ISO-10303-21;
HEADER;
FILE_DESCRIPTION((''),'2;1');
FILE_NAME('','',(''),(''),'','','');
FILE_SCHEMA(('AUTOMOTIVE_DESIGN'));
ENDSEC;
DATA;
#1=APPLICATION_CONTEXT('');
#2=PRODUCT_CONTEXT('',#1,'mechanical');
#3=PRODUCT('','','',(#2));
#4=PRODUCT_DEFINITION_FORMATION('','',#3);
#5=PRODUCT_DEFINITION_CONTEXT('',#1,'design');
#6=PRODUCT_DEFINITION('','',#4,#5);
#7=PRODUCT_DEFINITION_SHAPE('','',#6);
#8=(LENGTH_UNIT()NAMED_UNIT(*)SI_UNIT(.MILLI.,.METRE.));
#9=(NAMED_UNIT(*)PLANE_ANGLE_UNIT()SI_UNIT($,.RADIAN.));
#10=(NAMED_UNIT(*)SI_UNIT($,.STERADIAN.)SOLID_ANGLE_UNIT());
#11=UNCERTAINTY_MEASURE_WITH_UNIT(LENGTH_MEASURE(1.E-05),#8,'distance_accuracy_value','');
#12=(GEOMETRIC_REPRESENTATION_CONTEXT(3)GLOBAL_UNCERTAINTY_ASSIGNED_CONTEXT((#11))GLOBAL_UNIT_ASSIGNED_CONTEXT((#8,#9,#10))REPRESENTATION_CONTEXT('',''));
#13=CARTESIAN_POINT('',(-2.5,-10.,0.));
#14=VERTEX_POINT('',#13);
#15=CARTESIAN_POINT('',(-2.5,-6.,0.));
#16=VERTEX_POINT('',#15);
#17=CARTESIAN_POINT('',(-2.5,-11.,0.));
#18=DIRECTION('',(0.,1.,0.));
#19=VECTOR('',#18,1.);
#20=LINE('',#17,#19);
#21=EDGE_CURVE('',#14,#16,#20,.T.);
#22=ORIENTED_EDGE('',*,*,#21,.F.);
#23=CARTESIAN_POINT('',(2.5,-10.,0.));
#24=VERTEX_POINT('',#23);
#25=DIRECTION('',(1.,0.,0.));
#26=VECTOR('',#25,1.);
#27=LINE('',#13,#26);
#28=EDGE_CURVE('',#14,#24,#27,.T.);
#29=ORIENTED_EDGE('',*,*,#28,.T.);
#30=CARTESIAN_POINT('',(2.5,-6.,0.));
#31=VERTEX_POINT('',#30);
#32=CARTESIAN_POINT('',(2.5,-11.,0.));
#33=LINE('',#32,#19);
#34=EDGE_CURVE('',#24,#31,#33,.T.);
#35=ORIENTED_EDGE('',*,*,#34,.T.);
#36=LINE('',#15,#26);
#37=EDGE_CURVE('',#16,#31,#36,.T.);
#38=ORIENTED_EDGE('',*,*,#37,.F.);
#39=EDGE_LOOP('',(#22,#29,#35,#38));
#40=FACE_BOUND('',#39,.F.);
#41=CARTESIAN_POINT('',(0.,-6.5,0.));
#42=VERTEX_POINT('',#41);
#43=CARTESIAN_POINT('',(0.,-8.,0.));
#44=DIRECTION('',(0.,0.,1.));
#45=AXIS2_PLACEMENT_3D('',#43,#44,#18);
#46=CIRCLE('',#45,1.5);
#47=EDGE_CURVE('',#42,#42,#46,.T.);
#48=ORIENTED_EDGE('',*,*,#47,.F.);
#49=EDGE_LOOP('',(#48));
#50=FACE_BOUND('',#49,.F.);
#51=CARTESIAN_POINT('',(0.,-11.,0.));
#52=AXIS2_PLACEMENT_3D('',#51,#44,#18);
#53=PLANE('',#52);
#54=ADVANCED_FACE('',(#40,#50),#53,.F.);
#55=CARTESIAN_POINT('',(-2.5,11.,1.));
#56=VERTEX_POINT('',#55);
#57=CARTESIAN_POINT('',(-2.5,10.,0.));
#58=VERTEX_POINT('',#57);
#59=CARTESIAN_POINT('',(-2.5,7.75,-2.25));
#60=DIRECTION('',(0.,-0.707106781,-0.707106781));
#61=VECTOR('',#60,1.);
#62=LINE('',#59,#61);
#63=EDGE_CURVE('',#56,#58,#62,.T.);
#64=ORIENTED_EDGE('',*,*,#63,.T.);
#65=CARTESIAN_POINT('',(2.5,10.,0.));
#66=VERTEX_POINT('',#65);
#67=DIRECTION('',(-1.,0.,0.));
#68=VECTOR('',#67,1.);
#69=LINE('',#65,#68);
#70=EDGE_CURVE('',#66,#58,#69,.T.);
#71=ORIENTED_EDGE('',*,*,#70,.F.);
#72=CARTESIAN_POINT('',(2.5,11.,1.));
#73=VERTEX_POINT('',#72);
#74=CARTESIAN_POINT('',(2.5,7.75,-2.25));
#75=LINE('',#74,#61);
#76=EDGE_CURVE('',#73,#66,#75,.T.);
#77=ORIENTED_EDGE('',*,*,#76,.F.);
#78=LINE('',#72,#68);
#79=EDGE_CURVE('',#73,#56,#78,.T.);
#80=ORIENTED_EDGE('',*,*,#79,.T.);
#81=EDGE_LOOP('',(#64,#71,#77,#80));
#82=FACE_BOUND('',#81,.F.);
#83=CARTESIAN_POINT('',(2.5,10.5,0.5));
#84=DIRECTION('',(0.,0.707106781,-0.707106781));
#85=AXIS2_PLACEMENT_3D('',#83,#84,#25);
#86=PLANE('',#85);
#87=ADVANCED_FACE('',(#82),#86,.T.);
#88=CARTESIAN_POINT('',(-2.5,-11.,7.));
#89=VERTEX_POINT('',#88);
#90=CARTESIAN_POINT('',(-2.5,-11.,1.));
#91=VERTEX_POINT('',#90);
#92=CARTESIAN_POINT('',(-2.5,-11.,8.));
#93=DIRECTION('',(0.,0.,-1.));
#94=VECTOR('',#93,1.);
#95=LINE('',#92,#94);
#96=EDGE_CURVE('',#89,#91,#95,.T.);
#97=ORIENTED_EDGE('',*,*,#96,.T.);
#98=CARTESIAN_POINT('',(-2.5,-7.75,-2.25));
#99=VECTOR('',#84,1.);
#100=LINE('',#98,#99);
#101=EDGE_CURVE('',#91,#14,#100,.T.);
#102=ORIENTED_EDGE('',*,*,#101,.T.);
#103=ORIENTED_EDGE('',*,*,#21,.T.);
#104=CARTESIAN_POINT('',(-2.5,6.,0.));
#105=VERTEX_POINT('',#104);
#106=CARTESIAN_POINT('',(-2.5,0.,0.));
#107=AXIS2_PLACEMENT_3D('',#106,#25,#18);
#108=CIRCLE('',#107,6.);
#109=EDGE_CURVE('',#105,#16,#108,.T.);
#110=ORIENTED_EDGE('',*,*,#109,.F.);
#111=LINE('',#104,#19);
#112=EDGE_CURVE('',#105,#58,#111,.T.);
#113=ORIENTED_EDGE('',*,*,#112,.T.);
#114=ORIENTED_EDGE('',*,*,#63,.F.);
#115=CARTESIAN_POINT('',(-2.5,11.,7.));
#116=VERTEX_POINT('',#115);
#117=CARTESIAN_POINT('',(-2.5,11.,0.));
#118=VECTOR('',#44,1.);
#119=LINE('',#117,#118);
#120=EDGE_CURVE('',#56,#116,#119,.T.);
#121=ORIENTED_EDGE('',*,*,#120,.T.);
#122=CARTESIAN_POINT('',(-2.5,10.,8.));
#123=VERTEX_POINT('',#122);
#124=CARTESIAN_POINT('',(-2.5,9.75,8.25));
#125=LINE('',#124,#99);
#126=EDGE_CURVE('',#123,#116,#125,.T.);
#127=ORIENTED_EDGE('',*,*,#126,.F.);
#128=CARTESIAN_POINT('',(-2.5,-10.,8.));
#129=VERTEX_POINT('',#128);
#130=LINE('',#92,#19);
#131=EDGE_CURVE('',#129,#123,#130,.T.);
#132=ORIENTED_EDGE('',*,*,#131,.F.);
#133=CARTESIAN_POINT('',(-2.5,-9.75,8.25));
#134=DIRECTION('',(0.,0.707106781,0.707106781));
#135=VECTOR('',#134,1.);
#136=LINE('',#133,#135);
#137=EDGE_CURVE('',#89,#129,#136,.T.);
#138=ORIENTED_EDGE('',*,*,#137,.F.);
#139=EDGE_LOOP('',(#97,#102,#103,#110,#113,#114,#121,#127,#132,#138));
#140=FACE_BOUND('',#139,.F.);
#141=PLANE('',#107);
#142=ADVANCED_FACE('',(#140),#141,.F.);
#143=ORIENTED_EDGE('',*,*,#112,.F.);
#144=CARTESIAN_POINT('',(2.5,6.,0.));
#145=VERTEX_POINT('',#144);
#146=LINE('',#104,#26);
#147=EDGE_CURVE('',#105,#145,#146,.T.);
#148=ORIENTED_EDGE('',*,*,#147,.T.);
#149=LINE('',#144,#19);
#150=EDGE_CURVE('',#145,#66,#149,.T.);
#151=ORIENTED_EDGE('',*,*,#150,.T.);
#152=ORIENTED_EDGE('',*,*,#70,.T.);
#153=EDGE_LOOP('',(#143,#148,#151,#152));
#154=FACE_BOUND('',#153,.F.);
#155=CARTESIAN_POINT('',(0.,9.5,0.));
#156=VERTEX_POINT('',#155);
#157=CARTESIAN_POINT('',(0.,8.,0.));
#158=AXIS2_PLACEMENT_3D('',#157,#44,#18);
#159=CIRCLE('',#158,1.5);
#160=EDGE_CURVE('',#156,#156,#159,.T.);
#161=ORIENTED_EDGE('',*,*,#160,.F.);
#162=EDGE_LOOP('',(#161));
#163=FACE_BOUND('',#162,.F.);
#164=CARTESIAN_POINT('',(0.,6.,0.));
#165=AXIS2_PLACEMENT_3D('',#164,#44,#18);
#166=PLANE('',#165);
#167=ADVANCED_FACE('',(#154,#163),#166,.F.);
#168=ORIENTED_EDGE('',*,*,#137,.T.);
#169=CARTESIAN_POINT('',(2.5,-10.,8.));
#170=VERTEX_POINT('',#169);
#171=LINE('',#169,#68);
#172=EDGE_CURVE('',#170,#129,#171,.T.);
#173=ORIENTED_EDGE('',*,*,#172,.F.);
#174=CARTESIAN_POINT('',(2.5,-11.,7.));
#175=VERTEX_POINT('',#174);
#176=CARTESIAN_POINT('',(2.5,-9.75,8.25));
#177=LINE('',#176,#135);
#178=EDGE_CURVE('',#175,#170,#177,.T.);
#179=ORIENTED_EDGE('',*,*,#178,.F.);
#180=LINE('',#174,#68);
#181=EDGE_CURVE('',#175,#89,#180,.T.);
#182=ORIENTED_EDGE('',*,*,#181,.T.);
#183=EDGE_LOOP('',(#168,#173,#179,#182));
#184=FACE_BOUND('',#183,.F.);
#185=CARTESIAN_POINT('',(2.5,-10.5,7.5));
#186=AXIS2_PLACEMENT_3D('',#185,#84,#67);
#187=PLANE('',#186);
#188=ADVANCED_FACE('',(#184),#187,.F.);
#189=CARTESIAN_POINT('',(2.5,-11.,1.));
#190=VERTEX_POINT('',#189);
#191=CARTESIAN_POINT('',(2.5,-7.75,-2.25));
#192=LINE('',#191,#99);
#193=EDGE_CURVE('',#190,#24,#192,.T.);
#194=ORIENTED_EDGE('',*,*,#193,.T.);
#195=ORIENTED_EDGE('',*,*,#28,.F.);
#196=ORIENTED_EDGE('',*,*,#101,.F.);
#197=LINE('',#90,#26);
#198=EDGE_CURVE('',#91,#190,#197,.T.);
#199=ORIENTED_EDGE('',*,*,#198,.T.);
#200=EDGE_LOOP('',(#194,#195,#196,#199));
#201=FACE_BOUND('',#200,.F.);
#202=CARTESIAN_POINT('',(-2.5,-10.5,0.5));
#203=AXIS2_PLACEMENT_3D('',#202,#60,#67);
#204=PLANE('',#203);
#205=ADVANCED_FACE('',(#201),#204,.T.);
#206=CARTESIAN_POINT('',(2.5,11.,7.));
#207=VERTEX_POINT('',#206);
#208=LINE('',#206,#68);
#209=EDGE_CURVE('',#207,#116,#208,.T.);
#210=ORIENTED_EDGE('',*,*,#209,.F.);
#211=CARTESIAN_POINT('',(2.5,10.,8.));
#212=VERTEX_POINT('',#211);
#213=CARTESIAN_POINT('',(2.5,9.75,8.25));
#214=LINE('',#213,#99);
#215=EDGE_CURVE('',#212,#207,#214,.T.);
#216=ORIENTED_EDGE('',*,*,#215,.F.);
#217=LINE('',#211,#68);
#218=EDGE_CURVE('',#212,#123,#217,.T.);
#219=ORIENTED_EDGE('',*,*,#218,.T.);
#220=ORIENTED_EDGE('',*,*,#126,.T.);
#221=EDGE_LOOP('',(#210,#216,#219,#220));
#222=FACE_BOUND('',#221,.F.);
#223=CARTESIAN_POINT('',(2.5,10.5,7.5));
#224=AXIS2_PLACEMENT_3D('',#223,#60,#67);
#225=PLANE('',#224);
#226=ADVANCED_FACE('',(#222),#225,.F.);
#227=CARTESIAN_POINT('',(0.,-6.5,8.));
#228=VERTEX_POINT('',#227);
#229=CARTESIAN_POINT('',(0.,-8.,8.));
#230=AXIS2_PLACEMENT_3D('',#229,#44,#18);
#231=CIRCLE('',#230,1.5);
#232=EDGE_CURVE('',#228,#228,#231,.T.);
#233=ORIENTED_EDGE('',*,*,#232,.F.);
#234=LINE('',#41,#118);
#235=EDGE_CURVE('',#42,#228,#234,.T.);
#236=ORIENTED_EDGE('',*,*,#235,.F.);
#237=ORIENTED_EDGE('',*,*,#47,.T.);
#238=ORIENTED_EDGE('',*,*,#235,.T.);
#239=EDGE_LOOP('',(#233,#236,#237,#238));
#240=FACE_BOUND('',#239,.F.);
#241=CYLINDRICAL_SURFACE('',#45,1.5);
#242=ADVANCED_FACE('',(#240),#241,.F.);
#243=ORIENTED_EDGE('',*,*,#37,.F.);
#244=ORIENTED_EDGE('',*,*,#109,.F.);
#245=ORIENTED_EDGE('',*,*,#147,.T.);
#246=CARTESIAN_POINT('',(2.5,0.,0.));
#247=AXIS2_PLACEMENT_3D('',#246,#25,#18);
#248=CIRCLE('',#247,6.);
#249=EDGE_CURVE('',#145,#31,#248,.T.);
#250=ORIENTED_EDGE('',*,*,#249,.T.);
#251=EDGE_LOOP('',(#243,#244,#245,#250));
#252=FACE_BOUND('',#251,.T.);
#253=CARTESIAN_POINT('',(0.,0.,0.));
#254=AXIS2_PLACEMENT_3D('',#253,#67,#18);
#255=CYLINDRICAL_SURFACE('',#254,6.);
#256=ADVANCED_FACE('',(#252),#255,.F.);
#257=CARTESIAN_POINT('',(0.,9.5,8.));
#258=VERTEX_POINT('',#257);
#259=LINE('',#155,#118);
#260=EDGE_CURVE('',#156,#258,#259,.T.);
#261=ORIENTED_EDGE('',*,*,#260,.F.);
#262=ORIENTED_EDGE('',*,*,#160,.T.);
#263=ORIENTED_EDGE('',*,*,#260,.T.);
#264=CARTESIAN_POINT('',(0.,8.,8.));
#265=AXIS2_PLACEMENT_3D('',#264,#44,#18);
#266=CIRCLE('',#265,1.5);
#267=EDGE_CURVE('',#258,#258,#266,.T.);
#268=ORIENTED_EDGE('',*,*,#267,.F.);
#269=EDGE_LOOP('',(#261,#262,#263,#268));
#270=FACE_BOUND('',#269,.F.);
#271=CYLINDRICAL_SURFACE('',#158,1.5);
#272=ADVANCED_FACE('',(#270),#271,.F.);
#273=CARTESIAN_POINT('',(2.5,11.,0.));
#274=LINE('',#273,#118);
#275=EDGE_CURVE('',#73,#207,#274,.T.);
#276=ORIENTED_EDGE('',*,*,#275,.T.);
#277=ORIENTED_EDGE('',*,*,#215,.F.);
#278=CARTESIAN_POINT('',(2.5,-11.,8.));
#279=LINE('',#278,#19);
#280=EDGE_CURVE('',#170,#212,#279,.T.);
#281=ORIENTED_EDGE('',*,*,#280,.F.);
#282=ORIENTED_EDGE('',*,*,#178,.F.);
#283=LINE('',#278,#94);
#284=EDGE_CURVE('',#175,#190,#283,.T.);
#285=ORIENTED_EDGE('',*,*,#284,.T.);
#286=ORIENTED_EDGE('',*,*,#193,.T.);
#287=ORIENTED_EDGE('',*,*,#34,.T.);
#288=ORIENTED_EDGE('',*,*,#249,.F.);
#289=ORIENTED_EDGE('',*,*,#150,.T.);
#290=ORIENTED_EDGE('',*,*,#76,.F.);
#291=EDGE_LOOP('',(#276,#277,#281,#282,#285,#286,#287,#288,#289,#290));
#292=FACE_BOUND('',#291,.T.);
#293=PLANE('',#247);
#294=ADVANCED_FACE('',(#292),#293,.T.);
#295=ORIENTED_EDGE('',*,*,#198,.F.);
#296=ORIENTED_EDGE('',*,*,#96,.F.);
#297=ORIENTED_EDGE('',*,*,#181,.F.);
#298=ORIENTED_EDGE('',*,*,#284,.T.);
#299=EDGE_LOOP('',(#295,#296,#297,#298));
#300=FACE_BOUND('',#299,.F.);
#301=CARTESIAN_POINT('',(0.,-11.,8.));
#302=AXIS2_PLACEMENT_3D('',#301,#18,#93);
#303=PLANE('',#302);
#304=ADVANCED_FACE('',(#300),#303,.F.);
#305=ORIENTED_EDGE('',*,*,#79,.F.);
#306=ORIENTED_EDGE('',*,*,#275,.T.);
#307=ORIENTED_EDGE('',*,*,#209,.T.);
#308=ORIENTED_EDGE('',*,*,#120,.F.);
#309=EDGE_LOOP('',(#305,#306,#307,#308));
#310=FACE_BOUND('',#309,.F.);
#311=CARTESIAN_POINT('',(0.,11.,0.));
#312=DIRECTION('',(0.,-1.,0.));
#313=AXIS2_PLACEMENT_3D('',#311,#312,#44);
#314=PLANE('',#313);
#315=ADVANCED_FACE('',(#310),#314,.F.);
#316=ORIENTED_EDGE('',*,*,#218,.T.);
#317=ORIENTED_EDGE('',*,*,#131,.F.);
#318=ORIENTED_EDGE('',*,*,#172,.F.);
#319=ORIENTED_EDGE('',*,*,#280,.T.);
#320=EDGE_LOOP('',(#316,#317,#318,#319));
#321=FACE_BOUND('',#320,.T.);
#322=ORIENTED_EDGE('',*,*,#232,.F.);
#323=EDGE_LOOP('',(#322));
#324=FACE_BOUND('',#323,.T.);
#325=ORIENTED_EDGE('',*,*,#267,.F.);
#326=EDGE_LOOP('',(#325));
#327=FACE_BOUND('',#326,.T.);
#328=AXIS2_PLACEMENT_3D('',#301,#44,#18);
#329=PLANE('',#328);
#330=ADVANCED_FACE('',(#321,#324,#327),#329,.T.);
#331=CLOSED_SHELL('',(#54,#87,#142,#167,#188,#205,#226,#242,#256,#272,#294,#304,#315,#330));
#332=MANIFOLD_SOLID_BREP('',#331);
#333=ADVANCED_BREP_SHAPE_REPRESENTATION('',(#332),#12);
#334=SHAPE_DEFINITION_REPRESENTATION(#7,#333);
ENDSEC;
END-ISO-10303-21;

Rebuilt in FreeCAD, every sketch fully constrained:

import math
import FreeCAD as App
import Part
import Sketcher
from FreeCAD import Vector


def edges_at(feature, points):
    """Names of the edges that pass closest to the given points."""
    edges = feature.Shape.Edges
    near = lambda p: min(range(len(edges)), key=lambda i: edges[i].distToShape(Part.Vertex(*p))[0])
    return sorted({f"Edge{near(p) + 1}" for p in points})

doc = App.newDocument("Part")
body = doc.addObject("PartDesign::Body", "Body")

sketch1 = doc.addObject("Sketcher::SketchObject", "Sketch")
body.addObject(sketch1)
sketch1.AttachmentSupport = (doc.YZ_Plane, [""])
sketch1.MapMode = "FlatFace"
sketch1.addGeometry(Part.LineSegment(Vector(-11, 8, 0), Vector(-11, 0, 0)), False)
sketch1.addGeometry(Part.LineSegment(Vector(-11, 0, 0), Vector(-6, 0, 0)), False)
sketch1.addGeometry(Part.ArcOfCircle(Part.Circle(Vector(0, 0, 0), Vector(0, 0, 1), 6), math.radians(0), math.radians(180)), False)
sketch1.addGeometry(Part.LineSegment(Vector(6, 0, 0), Vector(11, 0, 0)), False)
sketch1.addGeometry(Part.LineSegment(Vector(11, 0, 0), Vector(11, 8, 0)), False)
sketch1.addGeometry(Part.LineSegment(Vector(11, 8, 0), Vector(-11, 8, 0)), False)
sketch1.addConstraint(Sketcher.Constraint("Coincident", 0, 2, 1, 1))
sketch1.addConstraint(Sketcher.Constraint("Coincident", 1, 2, 2, 2))
sketch1.addConstraint(Sketcher.Constraint("Coincident", 2, 1, 3, 1))
sketch1.addConstraint(Sketcher.Constraint("Coincident", 3, 2, 4, 1))
sketch1.addConstraint(Sketcher.Constraint("Coincident", 4, 2, 5, 1))
sketch1.addConstraint(Sketcher.Constraint("Coincident", 5, 2, 0, 1))
sketch1.addConstraint(Sketcher.Constraint("Vertical", 0))
sketch1.addConstraint(Sketcher.Constraint("Horizontal", 1))
sketch1.addConstraint(Sketcher.Constraint("Horizontal", 3))
sketch1.addConstraint(Sketcher.Constraint("Vertical", 4))
sketch1.addConstraint(Sketcher.Constraint("Horizontal", 5))
sketch1.addConstraint(Sketcher.Constraint("Coincident", 2, 3, -1, 1))
sketch1.addConstraint(Sketcher.Constraint("Symmetric", 0, 2, 3, 2, -1, 1))
sketch1.addConstraint(Sketcher.Constraint("PointOnObject", 0, 2, -1))
sketch1.addConstraint(Sketcher.Constraint("Radius", 2, 6.0))
sketch1.addConstraint(Sketcher.Constraint("DistanceX", 5, 2, 5, 1, 22.0))
sketch1.addConstraint(Sketcher.Constraint("DistanceY", 0, 2, 0, 1, 8.0))
pad1 = doc.addObject("PartDesign::Pad", "Pad")
body.addObject(pad1)
pad1.Profile = sketch1
pad1.Length = 5
pad1.Midplane = True

sketch2 = doc.addObject("Sketcher::SketchObject", "Sketch001")
body.addObject(sketch2)
sketch2.AttachmentSupport = (doc.XY_Plane, [""])
sketch2.MapMode = "FlatFace"
sketch2.addGeometry(Part.Circle(Vector(0, -8, 0), Vector(0, 0, 1), 1.5), False)
sketch2.addGeometry(Part.Circle(Vector(0, 8, 0), Vector(0, 0, 1), 1.5), False)
sketch2.addConstraint(Sketcher.Constraint("Equal", 0, 1))
sketch2.addConstraint(Sketcher.Constraint("Symmetric", 0, 3, 1, 3, -1, 1))
sketch2.addConstraint(Sketcher.Constraint("PointOnObject", 0, 3, -2))
sketch2.addConstraint(Sketcher.Constraint("Diameter", 0, 3.0))
sketch2.addConstraint(Sketcher.Constraint("DistanceY", 0, 3, -1, 1, 8.0))
doc.recompute()
hole = doc.addObject("PartDesign::Hole", "Hole")
body.addObject(hole)
hole.Profile = sketch2
hole.ThreadType = "None"
hole.Diameter = 3
hole.DepthType = "ThroughAll"
hole.Reversed = True
doc.recompute()

chamfer = doc.addObject("PartDesign::Chamfer", "Chamfer")
body.addObject(chamfer)
chamfer.Base = (hole, edges_at(hole, [
    (0, -11, 8),
    (0, 11, 8),
    (0, 11, 0),
    (0, -11, 0),
]))
chamfer.Size = 1

doc.recompute()
